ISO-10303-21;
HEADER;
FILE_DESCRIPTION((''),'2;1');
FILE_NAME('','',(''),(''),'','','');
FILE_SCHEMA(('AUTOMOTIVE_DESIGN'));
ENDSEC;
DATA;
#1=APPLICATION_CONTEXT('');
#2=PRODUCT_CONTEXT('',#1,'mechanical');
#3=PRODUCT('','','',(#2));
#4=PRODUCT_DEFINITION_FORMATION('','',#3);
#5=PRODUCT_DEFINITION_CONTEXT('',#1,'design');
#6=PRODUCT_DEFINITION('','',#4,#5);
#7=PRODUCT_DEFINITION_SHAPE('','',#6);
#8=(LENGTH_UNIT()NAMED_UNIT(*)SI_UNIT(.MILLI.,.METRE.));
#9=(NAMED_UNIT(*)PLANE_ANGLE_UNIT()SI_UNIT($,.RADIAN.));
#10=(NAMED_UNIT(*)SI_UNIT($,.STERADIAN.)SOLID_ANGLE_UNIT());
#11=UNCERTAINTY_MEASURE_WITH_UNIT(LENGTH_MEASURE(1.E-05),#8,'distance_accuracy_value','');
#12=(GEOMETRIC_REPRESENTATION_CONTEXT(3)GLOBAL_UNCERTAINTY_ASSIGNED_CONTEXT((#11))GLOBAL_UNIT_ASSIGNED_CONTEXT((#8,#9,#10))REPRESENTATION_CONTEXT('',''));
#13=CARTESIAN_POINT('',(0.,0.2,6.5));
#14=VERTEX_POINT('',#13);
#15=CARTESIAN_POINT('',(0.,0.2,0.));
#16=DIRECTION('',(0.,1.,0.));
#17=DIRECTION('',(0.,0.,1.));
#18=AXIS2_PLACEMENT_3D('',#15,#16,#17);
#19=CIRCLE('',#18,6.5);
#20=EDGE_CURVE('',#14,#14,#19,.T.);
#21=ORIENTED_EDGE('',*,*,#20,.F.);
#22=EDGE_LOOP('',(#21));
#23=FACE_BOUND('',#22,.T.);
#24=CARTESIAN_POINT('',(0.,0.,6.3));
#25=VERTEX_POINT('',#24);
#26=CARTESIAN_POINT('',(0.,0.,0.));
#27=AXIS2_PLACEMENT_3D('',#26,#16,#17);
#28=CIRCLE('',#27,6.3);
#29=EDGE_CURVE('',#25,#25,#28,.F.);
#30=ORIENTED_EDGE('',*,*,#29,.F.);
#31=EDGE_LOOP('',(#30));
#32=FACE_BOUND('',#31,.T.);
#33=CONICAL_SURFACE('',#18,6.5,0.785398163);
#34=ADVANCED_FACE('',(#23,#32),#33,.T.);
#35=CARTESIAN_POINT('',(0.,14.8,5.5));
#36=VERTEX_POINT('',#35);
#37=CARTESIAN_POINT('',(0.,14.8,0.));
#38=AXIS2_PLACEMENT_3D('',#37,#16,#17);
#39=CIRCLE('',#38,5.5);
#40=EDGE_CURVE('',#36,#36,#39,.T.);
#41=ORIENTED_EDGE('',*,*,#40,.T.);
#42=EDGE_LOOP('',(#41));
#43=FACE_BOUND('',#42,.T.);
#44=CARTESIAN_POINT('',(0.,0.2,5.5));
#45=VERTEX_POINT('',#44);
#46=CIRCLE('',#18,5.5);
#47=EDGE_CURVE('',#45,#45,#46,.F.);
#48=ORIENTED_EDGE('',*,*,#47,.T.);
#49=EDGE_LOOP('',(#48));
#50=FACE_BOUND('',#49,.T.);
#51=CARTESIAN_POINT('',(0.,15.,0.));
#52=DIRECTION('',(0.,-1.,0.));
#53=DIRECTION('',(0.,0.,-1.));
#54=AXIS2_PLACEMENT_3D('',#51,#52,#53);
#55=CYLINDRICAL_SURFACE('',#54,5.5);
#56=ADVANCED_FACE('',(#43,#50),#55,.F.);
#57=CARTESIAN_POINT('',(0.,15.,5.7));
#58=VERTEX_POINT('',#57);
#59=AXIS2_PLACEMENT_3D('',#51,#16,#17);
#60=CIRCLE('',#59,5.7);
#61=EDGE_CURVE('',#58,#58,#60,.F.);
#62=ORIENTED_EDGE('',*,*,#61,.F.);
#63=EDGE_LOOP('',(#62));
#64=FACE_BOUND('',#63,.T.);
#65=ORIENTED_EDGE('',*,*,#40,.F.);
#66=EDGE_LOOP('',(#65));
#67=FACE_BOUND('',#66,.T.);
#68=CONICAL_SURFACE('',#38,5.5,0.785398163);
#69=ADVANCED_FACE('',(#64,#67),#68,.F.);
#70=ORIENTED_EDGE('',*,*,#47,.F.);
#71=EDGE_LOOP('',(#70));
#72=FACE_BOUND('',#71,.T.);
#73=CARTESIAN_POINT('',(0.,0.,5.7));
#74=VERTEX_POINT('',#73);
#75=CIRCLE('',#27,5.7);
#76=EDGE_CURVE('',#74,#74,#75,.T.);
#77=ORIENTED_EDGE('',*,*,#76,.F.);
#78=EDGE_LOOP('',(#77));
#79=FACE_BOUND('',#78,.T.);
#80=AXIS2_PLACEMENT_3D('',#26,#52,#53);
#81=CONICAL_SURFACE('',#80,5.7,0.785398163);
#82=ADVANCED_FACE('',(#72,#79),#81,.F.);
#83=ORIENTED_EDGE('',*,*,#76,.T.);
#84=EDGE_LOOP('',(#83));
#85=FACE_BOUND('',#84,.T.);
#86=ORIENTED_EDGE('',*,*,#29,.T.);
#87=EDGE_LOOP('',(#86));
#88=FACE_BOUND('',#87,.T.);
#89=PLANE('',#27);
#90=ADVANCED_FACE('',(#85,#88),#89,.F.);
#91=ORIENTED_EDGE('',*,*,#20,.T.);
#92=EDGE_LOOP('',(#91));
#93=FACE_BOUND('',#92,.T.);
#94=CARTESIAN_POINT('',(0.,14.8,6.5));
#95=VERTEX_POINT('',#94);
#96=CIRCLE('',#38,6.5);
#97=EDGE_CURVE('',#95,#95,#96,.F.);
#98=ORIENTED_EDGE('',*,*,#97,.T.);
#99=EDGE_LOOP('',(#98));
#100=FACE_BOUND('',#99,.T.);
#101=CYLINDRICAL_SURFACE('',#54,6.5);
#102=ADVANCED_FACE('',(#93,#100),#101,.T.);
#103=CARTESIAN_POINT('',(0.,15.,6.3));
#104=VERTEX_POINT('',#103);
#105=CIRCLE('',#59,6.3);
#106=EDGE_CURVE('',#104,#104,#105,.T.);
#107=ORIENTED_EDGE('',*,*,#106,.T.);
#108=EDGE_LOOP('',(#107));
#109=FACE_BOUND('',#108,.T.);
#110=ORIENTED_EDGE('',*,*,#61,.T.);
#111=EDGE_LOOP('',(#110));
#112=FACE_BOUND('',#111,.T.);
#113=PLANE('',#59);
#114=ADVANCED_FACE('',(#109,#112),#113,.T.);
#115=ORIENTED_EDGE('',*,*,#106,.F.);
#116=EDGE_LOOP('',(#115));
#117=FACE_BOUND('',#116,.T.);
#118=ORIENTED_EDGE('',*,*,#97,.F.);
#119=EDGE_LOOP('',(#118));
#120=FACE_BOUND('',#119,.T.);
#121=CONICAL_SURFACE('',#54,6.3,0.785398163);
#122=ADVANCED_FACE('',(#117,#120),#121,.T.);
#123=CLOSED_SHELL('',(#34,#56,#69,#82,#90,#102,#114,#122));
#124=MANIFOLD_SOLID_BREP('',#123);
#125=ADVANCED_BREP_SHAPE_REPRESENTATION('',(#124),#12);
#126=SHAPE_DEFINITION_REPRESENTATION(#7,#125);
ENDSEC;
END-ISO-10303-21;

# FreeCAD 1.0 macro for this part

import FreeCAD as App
import Part
import Sketcher
from FreeCAD import Vector
Q = App.Units.Quantity


def edges_at(feature, points):
    """Names of the edges that pass closest to the given points."""
    edges = feature.Shape.Edges
    near = lambda p: min(range(len(edges)), key=lambda i: edges[i].distToShape(Part.Vertex(*p))[0])
    return sorted({f"Edge{near(p) + 1}" for p in points})

doc = App.newDocument("Part")
body = doc.addObject("PartDesign::Body", "Body")

# Sketch on XZ plane
sketch1 = body.newObject("Sketcher::SketchObject", "Sketch")
sketch1.AttachmentSupport = (doc.getObject("XZ_Plane"), [""])
sketch1.MapMode = "FlatFace"
sketch1.addGeometry([
    Part.Circle(Vector(0, 0, 0), Vector(0, 0, 1), 6),
    Part.Circle(Vector(0, 0, 0), Vector(0, 0, 1), 6),
], False)
sketch1.addConstraint([
    Sketcher.Constraint("Coincident", 0, 3, -1, 1),
    Sketcher.Constraint("Coincident", 1, 3, -1, 1),
    Sketcher.Constraint("Diameter", 0, Q("13 mm")),
    Sketcher.Constraint("Diameter", 1, Q("11 mm")),
])
pad1 = body.newObject("PartDesign::Pad", "Pad")
pad1.Profile = sketch1
pad1.Length = 15
pad1.Reversed = True
doc.recompute()

chamfer = body.newObject("PartDesign::Chamfer", "Chamfer")
chamfer.Base = (pad1, edges_at(pad1, [
    (-6.5, 15, 0),
    (-6.5, 0, 0),
    (-5.5, 0, 0),
    (-5.5, 15, 0),
]))
chamfer.Size = 0.2

doc.recompute()
